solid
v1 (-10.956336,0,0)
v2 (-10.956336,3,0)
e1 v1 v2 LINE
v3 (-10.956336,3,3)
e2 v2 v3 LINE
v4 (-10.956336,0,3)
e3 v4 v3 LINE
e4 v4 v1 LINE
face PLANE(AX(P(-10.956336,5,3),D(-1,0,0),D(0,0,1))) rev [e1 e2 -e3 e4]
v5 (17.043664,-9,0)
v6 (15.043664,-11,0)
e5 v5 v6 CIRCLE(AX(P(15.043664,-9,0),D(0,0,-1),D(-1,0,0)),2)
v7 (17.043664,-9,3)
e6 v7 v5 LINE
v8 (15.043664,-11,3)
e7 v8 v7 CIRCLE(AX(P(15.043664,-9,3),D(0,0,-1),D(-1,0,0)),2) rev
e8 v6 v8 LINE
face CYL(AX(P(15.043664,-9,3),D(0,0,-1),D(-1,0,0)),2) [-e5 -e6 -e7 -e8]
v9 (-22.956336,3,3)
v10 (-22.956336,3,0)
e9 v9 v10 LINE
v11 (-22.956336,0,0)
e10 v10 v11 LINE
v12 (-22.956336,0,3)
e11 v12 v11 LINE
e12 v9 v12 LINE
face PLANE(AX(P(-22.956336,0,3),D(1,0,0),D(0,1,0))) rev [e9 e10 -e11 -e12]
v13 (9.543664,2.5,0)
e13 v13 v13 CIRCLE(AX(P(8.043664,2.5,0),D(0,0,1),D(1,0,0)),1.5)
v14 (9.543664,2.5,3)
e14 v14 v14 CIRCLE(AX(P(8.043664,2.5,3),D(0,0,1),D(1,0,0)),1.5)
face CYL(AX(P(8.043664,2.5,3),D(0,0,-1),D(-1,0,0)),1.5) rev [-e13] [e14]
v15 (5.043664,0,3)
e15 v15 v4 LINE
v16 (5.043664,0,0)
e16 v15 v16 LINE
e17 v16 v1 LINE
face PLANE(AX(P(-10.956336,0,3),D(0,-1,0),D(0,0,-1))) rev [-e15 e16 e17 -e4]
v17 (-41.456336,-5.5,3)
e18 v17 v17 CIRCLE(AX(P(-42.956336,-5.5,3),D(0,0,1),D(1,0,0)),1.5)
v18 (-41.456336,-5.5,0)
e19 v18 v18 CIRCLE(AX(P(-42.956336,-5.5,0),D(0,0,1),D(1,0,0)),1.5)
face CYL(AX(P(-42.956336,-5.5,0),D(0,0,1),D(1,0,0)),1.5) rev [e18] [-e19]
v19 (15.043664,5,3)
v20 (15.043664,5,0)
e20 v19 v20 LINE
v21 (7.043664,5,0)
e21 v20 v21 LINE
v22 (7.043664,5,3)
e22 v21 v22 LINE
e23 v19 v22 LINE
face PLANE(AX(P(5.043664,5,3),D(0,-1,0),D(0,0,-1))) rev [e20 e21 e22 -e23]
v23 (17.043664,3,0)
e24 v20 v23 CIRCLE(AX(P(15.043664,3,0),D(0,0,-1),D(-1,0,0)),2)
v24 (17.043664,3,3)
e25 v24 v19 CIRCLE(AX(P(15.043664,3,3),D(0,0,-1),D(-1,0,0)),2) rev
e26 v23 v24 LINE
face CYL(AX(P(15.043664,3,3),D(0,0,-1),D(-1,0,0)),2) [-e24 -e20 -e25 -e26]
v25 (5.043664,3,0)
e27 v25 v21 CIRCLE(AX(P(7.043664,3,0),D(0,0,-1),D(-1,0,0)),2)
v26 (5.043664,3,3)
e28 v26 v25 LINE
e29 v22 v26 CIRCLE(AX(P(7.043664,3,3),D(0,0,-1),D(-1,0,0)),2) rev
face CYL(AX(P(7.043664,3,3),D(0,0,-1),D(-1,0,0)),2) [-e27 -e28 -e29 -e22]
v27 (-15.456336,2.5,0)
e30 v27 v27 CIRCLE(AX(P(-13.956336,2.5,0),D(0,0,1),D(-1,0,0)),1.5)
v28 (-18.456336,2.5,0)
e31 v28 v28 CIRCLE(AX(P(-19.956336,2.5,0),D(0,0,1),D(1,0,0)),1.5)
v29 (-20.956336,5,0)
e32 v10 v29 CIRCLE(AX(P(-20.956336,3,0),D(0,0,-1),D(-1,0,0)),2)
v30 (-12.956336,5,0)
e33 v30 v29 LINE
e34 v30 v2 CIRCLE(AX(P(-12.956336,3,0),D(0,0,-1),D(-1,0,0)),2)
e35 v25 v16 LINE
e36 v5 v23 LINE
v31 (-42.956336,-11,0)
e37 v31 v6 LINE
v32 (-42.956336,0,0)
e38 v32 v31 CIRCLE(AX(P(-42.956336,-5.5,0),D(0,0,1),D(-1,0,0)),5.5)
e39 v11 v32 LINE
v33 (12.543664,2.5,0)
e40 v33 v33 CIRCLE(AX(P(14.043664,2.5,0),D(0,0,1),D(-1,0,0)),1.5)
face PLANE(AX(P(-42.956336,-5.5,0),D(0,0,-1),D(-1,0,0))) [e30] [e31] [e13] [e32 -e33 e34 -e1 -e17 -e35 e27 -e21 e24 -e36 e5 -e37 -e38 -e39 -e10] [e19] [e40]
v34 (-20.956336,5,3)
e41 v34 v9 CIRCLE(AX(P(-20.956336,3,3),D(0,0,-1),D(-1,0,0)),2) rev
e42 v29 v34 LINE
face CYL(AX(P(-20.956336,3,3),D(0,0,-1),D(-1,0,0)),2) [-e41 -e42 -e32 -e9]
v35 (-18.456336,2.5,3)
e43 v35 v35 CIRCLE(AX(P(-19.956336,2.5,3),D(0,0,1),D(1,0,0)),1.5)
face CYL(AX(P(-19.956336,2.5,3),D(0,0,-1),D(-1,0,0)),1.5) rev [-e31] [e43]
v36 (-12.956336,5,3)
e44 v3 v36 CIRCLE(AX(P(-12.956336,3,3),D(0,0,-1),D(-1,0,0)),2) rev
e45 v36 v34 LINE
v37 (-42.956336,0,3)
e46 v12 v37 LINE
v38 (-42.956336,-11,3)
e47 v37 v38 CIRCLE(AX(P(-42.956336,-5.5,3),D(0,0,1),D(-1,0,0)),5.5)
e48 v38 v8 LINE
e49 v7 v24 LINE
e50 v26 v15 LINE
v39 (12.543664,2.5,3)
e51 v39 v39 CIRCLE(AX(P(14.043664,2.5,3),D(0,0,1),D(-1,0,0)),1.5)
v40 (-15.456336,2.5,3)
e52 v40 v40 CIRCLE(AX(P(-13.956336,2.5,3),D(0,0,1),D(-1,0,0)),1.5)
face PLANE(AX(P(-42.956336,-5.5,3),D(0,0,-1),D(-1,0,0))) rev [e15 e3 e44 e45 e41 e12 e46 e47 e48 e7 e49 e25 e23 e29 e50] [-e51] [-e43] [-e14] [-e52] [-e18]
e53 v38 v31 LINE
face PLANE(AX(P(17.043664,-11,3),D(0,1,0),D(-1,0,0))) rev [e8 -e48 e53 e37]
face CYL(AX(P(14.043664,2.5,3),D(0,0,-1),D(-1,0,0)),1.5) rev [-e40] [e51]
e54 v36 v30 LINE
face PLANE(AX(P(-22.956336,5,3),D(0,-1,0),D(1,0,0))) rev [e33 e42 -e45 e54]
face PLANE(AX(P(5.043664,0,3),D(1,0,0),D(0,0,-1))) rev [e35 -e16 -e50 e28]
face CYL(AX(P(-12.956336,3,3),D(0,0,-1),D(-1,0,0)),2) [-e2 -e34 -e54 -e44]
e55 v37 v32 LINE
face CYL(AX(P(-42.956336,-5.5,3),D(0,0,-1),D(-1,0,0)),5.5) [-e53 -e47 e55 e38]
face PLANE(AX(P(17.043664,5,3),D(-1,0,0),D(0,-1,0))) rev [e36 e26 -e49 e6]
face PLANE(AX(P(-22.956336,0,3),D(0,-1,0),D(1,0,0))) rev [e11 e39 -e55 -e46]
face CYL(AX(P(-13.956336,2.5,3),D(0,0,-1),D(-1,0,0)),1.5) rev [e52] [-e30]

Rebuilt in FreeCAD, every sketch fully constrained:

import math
import FreeCAD as App
import Part
import Sketcher

V = App.Vector


def edges_at(feature, points):
    """Names of the edges that pass closest to the given points."""
    edges = feature.Shape.Edges
    near = lambda p: min(range(len(edges)), key=lambda i: edges[i].distToShape(Part.Vertex(*p))[0])
    return sorted({f"Edge{near(p) + 1}" for p in points})

doc = App.newDocument("Part")
body = doc.addObject("PartDesign::Body", "Body")

# Sketch on XY plane
sketch1 = doc.addObject("Sketcher::SketchObject", "Sketch")
body.addObject(sketch1)
sketch1.AttachmentSupport = (doc.XY_Plane, [""])
sketch1.MapMode = "FlatFace"
sketch1.addGeometry([
    Part.LineSegment(V(-23, 5, 0), V(-23, 0, 0)),  # 0
    Part.LineSegment(V(-23, 0, 0), V(-43, 0, 0)),  # 1
    Part.ArcOfCircle(Part.Circle(V(-43, -5.5, 0), V(0, 0, 1), 5.5), math.radians(90), math.radians(270)),  # 2
    Part.LineSegment(V(-43, -11, 0), V(17, -11, 0)),  # 3
    Part.LineSegment(V(17, -11, 0), V(17, 5, 0)),  # 4
    Part.LineSegment(V(17, 5, 0), V(5, 5, 0)),  # 5
    Part.LineSegment(V(5, 5, 0), V(5, 0, 0)),  # 6
    Part.LineSegment(V(5, 0, 0), V(-11, 0, 0)),  # 7
    Part.LineSegment(V(-11, 0, 0), V(-11, 5, 0)),  # 8
    Part.LineSegment(V(-11, 5, 0), V(-23, 5, 0)),  # 9
    Part.Circle(V(14, 2.5, 0), V(0, 0, 1), 1.5),  # 10
    Part.Circle(V(8, 2.5, 0), V(0, 0, 1), 1.5),  # 11
    Part.Circle(V(-14, 2.5, 0), V(0, 0, 1), 1.5),  # 12
    Part.Circle(V(-20, 2.5, 0), V(0, 0, 1), 1.5),  # 13
], False)
sketch1.addConstraint([
    Sketcher.Constraint("Coincident", 0, 2, 1, 1),
    Sketcher.Constraint("Tangent", 1, 2, 2, 1),
    Sketcher.Constraint("Tangent", 2, 2, 3, 1),
    Sketcher.Constraint("Coincident", 3, 2, 4, 1),
    Sketcher.Constraint("Coincident", 4, 2, 5, 1),
    Sketcher.Constraint("Coincident", 5, 2, 6, 1),
    Sketcher.Constraint("Coincident", 6, 2, 7, 1),
    Sketcher.Constraint("Coincident", 7, 2, 8, 1),
    Sketcher.Constraint("Coincident", 8, 2, 9, 1),
    Sketcher.Constraint("Coincident", 9, 2, 0, 1),
    Sketcher.Constraint("Vertical", 0),
    Sketcher.Constraint("Horizontal", 1),
    Sketcher.Constraint("Horizontal", 3),
    Sketcher.Constraint("Vertical", 4),
    Sketcher.Constraint("Horizontal", 5),
    Sketcher.Constraint("Vertical", 6),
    Sketcher.Constraint("Horizontal", 7),
    Sketcher.Constraint("Vertical", 8),
    Sketcher.Constraint("Horizontal", 9),
    Sketcher.Constraint("Equal", 10, 11),
    Sketcher.Constraint("Equal", 11, 12),
    Sketcher.Constraint("Equal", 12, 13),
    Sketcher.Constraint("PointOnObject", 0, 2, -1),
    Sketcher.Constraint("PointOnObject", 6, 2, -1),
    Sketcher.Constraint("Horizontal", 10, 3, 11, 3),
    Sketcher.Constraint("Horizontal", 11, 3, 12, 3),
    Sketcher.Constraint("Horizontal", 12, 3, 13, 3),
    Sketcher.Constraint("Horizontal", 5, 2, 8, 2),
    Sketcher.Constraint("Equal", 5, 9),
    Sketcher.Constraint("Equal", 7, 4),
    Sketcher.Constraint("Diameter", 10, 3.0),
    Sketcher.Constraint("Radius", 2, 5.5),
    Sketcher.Constraint("DistanceX", 1, 2, 1, 1, 20.0),
    Sketcher.Constraint("DistanceX", 3, 1, 3, 2, 60.0),
    Sketcher.Constraint("DistanceX", 5, 2, 5, 1, 12.0),
    Sketcher.Constraint("DistanceX", 2, 3, 10, 3, 57.0),
    Sketcher.Constraint("DistanceY", 2, 3, 10, 3, 8.0),
    Sketcher.Constraint("DistanceX", 11, 3, 10, 3, 6.0),
    Sketcher.Constraint("DistanceX", 12, 3, 11, 3, 22.0),
    Sketcher.Constraint("DistanceX", 13, 3, 12, 3, 6.0),
    Sketcher.Constraint("DistanceX", 2, 3, -1, 1, 42.956336),
])
pad1 = doc.addObject("PartDesign::Pad", "Pad")
body.addObject(pad1)
pad1.Profile = sketch1
pad1.Length = 3

# Sketch on XY plane
sketch2 = doc.addObject("Sketcher::SketchObject", "Sketch001")
body.addObject(sketch2)
sketch2.AttachmentSupport = (doc.XY_Plane, [""])
sketch2.MapMode = "FlatFace"
sketch2.AttachmentOffset = App.Placement(V(0, 0, 3), App.Rotation())
sketch2.addGeometry(Part.Circle(V(-43, -5.5, 0), V(0, 0, 1), 1.5), False)
sketch2.addConstraint([
    Sketcher.Constraint("Diameter", 0, 3.0),
    Sketcher.Constraint("DistanceY", 0, 3, -1, 1, 5.5),
    Sketcher.Constraint("DistanceX", 0, 3, -1, 1, 42.956336),
])
pocket1 = doc.addObject("PartDesign::Pocket", "Pocket")
body.addObject(pocket1)
pocket1.Profile = sketch2
pocket1.Type = "ThroughAll"
doc.recompute()

fillet = doc.addObject("PartDesign::Fillet", "Fillet")
body.addObject(fillet)
fillet.Base = (pocket1, edges_at(pocket1, [
    (-22.956, 5, 1.5),
    (-10.956, 5, 1.5),
    (5.044, 5, 1.5),
    (17.044, 5, 1.5),
    (17.044, -11, 1.5),
]))
fillet.Radius = 2

doc.recompute()
